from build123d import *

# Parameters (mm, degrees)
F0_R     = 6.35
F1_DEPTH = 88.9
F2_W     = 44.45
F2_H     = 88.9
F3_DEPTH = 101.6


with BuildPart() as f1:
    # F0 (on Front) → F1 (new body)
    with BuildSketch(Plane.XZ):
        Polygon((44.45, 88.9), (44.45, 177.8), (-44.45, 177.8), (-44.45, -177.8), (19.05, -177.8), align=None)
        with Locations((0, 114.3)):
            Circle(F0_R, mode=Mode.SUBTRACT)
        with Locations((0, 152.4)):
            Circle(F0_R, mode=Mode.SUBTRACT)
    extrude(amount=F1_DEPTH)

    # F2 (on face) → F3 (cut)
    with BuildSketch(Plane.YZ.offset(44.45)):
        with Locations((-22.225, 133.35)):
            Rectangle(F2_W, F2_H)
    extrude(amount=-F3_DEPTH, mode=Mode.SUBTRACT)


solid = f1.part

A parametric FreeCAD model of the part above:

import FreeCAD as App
import Part
import Sketcher
Q = App.Units.Quantity

doc = App.newDocument("Part")
params = doc.addObject("Spreadsheet::Sheet", "Params")
for row, (alias, value) in enumerate([
    ("sketch1_diameter", "0.5 in"),
    ("sketch1_height", "14 in"),
    ("sketch1_width", "3.5 in"),
    ("sketch1_width2", "2.5 in"),
    ("pad1_length", "3.5 in"),
    ("sketch2_height", "3.5 in"),
    ("sketch2_width", "1.75 in"),
    ("pocket1_length", "4 in"),
], start=1):
    params.set(f"A{row}", alias)
    params.set(f"B{row}", "=" + value)
    params.setAlias(f"B{row}", alias)

body = doc.addObject("PartDesign::Body", "Body")

# Sketch on XZ plane
sketch1 = body.newObject("Sketcher::SketchObject", "Sketch")
sketch1.AttachmentSupport = (doc.getObject("XZ_Plane"), [""])
sketch1.MapMode = "FlatFace"
sketch1.addGeometry([
    Part.LineSegment(App.Vector(44, 89, 0), App.Vector(44, 178, 0)),  # 0
    Part.LineSegment(App.Vector(44, 178, 0), App.Vector(-44, 178, 0)),  # 1
    Part.LineSegment(App.Vector(-44, 178, 0), App.Vector(-44, -178, 0)),  # 2
    Part.LineSegment(App.Vector(-44, -178, 0), App.Vector(19, -178, 0)),  # 3
    Part.LineSegment(App.Vector(19, -178, 0), App.Vector(44, 89, 0)),  # 4
    Part.Circle(App.Vector(0, 114, 0), App.Vector(0, 0, 1), 6),  # 5
    Part.Circle(App.Vector(0, 152, 0), App.Vector(0, 0, 1), 6),  # 6
], False)
sketch1.addConstraint([
    Sketcher.Constraint("Coincident", 0, 2, 1, 1),
    Sketcher.Constraint("Coincident", 1, 2, 2, 1),
    Sketcher.Constraint("Coincident", 2, 2, 3, 1),
    Sketcher.Constraint("Coincident", 3, 2, 4, 1),
    Sketcher.Constraint("Coincident", 4, 2, 0, 1),
    Sketcher.Constraint("Vertical", 0),
    Sketcher.Constraint("Horizontal", 1),
    Sketcher.Constraint("Vertical", 2),
    Sketcher.Constraint("Horizontal", 3),
    Sketcher.Constraint("Equal", 5, 6),
    Sketcher.Constraint("Symmetric", 0, 2, 2, 2, -1, 1),
    Sketcher.Constraint("PointOnObject", 5, 3, -2),
    Sketcher.Constraint("PointOnObject", 6, 3, -2),
    Sketcher.Constraint("Equal", 1, 0),
    Sketcher.Constraint("Diameter", 5, Q("0.5 in")),
    Sketcher.Constraint("DistanceY", 2, 2, 2, 1, Q("14 in")),
    Sketcher.Constraint("DistanceX", 1, 2, 1, 1, Q("3.5 in")),
    Sketcher.Constraint("DistanceX", 3, 1, 3, 2, Q("2.5 in")),
    Sketcher.Constraint("DistanceY", -1, 1, 6, 3, Q("6 in")),
    Sketcher.Constraint("DistanceY", 4, 2, 5, 3, Q("1 in")),
])
sketch1.setExpression("Constraints[14]", "Params.sketch1_diameter")
sketch1.setExpression("Constraints[15]", "Params.sketch1_height")
sketch1.setExpression("Constraints[16]", "Params.sketch1_width")
sketch1.setExpression("Constraints[17]", "Params.sketch1_width2")
pad1 = body.newObject("PartDesign::Pad", "Pad")
pad1.Profile = sketch1
pad1.setExpression("Length", "Params.pad1_length")

# Sketch on YZ plane
sketch2 = body.newObject("Sketcher::SketchObject", "Sketch001")
sketch2.AttachmentSupport = (doc.getObject("YZ_Plane"), [""])
sketch2.MapMode = "FlatFace"
sketch2.AttachmentOffset = App.Placement(App.Vector(0, 0, 1.75 * 25.4), App.Rotation())
sketch2.addGeometry([
    Part.LineSegment(App.Vector(-44, 178, 0), App.Vector(-44, 89, 0)),
    Part.LineSegment(App.Vector(-44, 89, 0), App.Vector(0, 89, 0)),
    Part.LineSegment(App.Vector(0, 89, 0), App.Vector(0, 178, 0)),
    Part.LineSegment(App.Vector(0, 178, 0), App.Vector(-44, 178, 0)),
], False)
sketch2.addConstraint([
    Sketcher.Constraint("Coincident", 0, 2, 1, 1),
    Sketcher.Constraint("Coincident", 1, 2, 2, 1),
    Sketcher.Constraint("Coincident", 2, 2, 3, 1),
    Sketcher.Constraint("Coincident", 3, 2, 0, 1),
    Sketcher.Constraint("Vertical", 0),
    Sketcher.Constraint("Horizontal", 1),
    Sketcher.Constraint("Vertical", 2),
    Sketcher.Constraint("Horizontal", 3),
    Sketcher.Constraint("PointOnObject", 1, 2, -2),
    Sketcher.Constraint("DistanceY", 0, 2, 0, 1, Q("3.5 in")),
    Sketcher.Constraint("DistanceY", -1, 1, 2, 2, Q("7 in")),
    Sketcher.Constraint("DistanceX", 1, 1, 1, 2, Q("1.75 in")),
])
sketch2.setExpression("Constraints[9]", "Params.sketch2_height")
sketch2.setExpression("Constraints[11]", "Params.sketch2_width")
pocket1 = body.newObject("PartDesign::Pocket", "Pocket")
pocket1.Profile = sketch2
pocket1.setExpression("Length", "Params.pocket1_length")

doc.recompute()
